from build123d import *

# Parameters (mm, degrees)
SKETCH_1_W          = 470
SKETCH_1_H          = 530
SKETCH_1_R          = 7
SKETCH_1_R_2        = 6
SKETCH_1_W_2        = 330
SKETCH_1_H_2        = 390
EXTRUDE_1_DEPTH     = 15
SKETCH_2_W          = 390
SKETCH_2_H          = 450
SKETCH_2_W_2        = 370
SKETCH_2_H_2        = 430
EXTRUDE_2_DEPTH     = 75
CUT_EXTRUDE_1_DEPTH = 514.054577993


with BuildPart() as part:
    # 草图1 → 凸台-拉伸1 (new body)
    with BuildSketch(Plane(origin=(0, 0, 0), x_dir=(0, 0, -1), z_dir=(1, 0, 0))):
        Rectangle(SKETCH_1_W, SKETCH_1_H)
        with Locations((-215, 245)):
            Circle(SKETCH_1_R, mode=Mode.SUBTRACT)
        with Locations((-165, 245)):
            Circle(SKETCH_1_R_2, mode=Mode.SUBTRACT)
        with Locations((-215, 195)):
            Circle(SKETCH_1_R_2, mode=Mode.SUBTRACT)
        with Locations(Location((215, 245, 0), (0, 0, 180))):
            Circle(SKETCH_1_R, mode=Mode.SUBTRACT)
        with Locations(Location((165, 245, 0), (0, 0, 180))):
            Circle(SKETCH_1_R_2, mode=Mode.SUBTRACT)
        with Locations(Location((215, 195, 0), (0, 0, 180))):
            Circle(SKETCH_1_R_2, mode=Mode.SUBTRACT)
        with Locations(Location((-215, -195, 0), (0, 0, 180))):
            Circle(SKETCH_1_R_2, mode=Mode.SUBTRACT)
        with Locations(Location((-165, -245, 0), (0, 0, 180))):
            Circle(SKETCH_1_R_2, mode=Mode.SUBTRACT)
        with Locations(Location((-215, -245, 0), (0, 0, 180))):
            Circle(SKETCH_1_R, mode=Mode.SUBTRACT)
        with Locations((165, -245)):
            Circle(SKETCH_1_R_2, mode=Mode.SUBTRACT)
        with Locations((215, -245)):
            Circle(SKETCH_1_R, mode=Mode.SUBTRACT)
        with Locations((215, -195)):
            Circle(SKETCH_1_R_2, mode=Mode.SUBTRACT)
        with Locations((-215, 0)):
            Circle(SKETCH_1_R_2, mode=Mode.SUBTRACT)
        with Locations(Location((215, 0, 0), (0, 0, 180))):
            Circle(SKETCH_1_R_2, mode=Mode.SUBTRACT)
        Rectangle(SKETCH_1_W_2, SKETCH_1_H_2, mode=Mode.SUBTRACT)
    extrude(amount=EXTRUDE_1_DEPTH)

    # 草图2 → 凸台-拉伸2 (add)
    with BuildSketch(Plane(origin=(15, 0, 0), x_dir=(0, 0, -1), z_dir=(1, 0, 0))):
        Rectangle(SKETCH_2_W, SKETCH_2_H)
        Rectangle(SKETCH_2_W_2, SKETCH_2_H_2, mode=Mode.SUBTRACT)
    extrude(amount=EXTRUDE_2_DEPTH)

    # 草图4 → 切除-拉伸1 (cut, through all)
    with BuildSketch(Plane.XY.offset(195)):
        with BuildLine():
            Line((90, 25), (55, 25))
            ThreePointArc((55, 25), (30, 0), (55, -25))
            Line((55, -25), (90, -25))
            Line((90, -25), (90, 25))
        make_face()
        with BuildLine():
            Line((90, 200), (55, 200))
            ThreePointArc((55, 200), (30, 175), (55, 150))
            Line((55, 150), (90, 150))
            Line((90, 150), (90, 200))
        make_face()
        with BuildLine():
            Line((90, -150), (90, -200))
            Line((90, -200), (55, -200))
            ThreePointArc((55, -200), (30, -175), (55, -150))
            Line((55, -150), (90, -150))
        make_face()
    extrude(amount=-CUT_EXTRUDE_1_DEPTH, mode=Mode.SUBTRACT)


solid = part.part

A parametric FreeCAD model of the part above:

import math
import FreeCAD as App
import Part
import Sketcher
from FreeCAD import Vector


def add_polygon(sketch, points):
    """Adds a closed chain of lines whose ends are joined by coincident constraints."""
    first, n = sketch.GeometryCount, len(points)
    for a, b in zip(points, points[1:] + points[:1]):
        sketch.addGeometry(Part.LineSegment(App.Vector(*a, 0), App.Vector(*b, 0)), False)
    for i in range(n):
        sketch.addConstraint(Sketcher.Constraint("Coincident", first + i, 2, first + (i + 1) % n, 1))

doc = App.newDocument("Part")
body = doc.addObject("PartDesign::Body", "Body")

sketch1 = doc.addObject("Sketcher::SketchObject", "Sketch")
body.addObject(sketch1)
sketch1.AttachmentSupport = (doc.YZ_Plane, [""])
sketch1.MapMode = "FlatFace"
add_polygon(sketch1, [(265, 235), (-265, 235), (-265, -235), (265, -235)])
sketch1.addGeometry(Part.Circle(Vector(-245, 215, 0), Vector(0, 0, 1), 7), False)
sketch1.addGeometry(Part.Circle(Vector(-195, 215, 0), Vector(0, 0, 1), 6), False)
sketch1.addGeometry(Part.Circle(Vector(-245, 165, 0), Vector(0, 0, 1), 6), False)
sketch1.addGeometry(Part.Circle(Vector(-245, -165, 0), Vector(0, 0, 1), 6), False)
sketch1.addGeometry(Part.Circle(Vector(-245, -215, 0), Vector(0, 0, 1), 7), False)
sketch1.addGeometry(Part.Circle(Vector(-195, -215, 0), Vector(0, 0, 1), 6), False)
sketch1.addGeometry(Part.Circle(Vector(0, 215, 0), Vector(0, 0, 1), 6), False)
sketch1.addGeometry(Part.Circle(Vector(195, 215, 0), Vector(0, 0, 1), 6), False)
sketch1.addGeometry(Part.Circle(Vector(245, 215, 0), Vector(0, 0, 1), 7), False)
sketch1.addGeometry(Part.Circle(Vector(245, 165, 0), Vector(0, 0, 1), 6), False)
add_polygon(sketch1, [(-195, -165), (-195, 165), (195, 165), (195, -165)])
sketch1.addGeometry(Part.Circle(Vector(0, -215, 0), Vector(0, 0, 1), 6), False)
sketch1.addGeometry(Part.Circle(Vector(245, -165, 0), Vector(0, 0, 1), 6), False)
sketch1.addGeometry(Part.Circle(Vector(195, -215, 0), Vector(0, 0, 1), 6), False)
sketch1.addGeometry(Part.Circle(Vector(245, -215, 0), Vector(0, 0, 1), 7), False)
sketch1.addConstraint([
    Sketcher.Constraint("Horizontal", 0),
    Sketcher.Constraint("Vertical", 1),
    Sketcher.Constraint("Horizontal", 2),
    Sketcher.Constraint("Vertical", 3),
    Sketcher.Constraint("Vertical", 14),
    Sketcher.Constraint("Horizontal", 15),
    Sketcher.Constraint("Vertical", 16),
    Sketcher.Constraint("Horizontal", 17),
    Sketcher.Constraint("Equal", 5, 6),
    Sketcher.Constraint("Equal", 6, 7),
    Sketcher.Constraint("Equal", 4, 8),
    Sketcher.Constraint("Equal", 7, 9),
    Sketcher.Constraint("Equal", 9, 10),
    Sketcher.Constraint("Equal", 10, 11),
    Sketcher.Constraint("Equal", 8, 12),
    Sketcher.Constraint("Equal", 11, 13),
    Sketcher.Constraint("Equal", 13, 18),
    Sketcher.Constraint("Equal", 18, 19),
    Sketcher.Constraint("Equal", 19, 20),
    Sketcher.Constraint("Equal", 12, 21),
    Sketcher.Constraint("Symmetric", 9, 3, 11, 3, -1, 1),
    Sketcher.Constraint("Symmetric", 8, 3, 12, 3, -1, 1),
    Sketcher.Constraint("Symmetric", 7, 3, 13, 3, -1, 1),
    Sketcher.Constraint("Symmetric", 10, 3, 18, 3, -1, 1),
    Sketcher.Constraint("Symmetric", 6, 3, 19, 3, -1, 1),
    Sketcher.Constraint("Symmetric", 5, 3, 20, 3, -1, 1),
    Sketcher.Constraint("Symmetric", 4, 3, 21, 3, -1, 1),
    Sketcher.Constraint("Symmetric", 0, 2, 2, 2, -1, 1),
    Sketcher.Constraint("Symmetric", 14, 2, 16, 2, -1, 1),
    Sketcher.Constraint("Symmetric", 5, 3, 11, 3, -2),
    Sketcher.Constraint("Symmetric", 4, 3, 12, 3, -2),
    Sketcher.Constraint("Symmetric", 6, 3, 13, 3, -2),
    Sketcher.Constraint("PointOnObject", 10, 3, -2),
    Sketcher.Constraint("Horizontal", 4, 3, 5, 3),
    Sketcher.Constraint("Horizontal", 5, 3, 10, 3),
    Sketcher.Constraint("Horizontal", 13, 3, 14, 2),
    Sketcher.Constraint("Vertical", 4, 3, 6, 3),
    Sketcher.Constraint("Vertical", 9, 3, 14, 2),
    Sketcher.Constraint("Diameter", 4, 14.0),
    Sketcher.Constraint("Diameter", 5, 12.0),
    Sketcher.Constraint("DistanceX", 0, 2, 0, 1, 530.0),
    Sketcher.Constraint("DistanceX", 15, 1, 15, 2, 390.0),
    Sketcher.Constraint("DistanceY", 1, 2, 1, 1, 470.0),
    Sketcher.Constraint("DistanceY", 14, 1, 14, 2, 330.0),
    Sketcher.Constraint("DistanceX", 4, 3, -1, 1, 245.0),
    Sketcher.Constraint("DistanceY", -1, 1, 4, 3, 215.0),
])
pad1 = doc.addObject("PartDesign::Pad", "Pad")
body.addObject(pad1)
pad1.Profile = sketch1
pad1.Length = 15

sketch2 = doc.addObject("Sketcher::SketchObject", "Sketch001")
body.addObject(sketch2)
sketch2.AttachmentSupport = (doc.YZ_Plane, [""])
sketch2.MapMode = "FlatFace"
sketch2.AttachmentOffset = App.Placement(Vector(0, 0, 15), App.Rotation())
add_polygon(sketch2, [(225, 195), (-225, 195), (-225, -195), (225, -195)])
add_polygon(sketch2, [(-215, -185), (-215, 185), (215, 185), (215, -185)])
sketch2.addConstraint([
    Sketcher.Constraint("Horizontal", 0),
    Sketcher.Constraint("Vertical", 1),
    Sketcher.Constraint("Horizontal", 2),
    Sketcher.Constraint("Vertical", 3),
    Sketcher.Constraint("Vertical", 4),
    Sketcher.Constraint("Horizontal", 5),
    Sketcher.Constraint("Vertical", 6),
    Sketcher.Constraint("Horizontal", 7),
    Sketcher.Constraint("Symmetric", 0, 2, 2, 2, -1, 1),
    Sketcher.Constraint("Symmetric", 4, 2, 6, 2, -1, 1),
    Sketcher.Constraint("DistanceX", 0, 2, 0, 1, 450.0),
    Sketcher.Constraint("DistanceX", 5, 1, 5, 2, 430.0),
    Sketcher.Constraint("DistanceY", 1, 2, 1, 1, 390.0),
    Sketcher.Constraint("DistanceY", 4, 1, 4, 2, 370.0),
])
pad2 = doc.addObject("PartDesign::Pad", "Pad001")
body.addObject(pad2)
pad2.Profile = sketch2
pad2.Length = 75

sketch3 = doc.addObject("Sketcher::SketchObject", "Sketch002")
body.addObject(sketch3)
sketch3.AttachmentSupport = (doc.XY_Plane, [""])
sketch3.MapMode = "FlatFace"
sketch3.AttachmentOffset = App.Placement(Vector(0, 0, 195), App.Rotation())
sketch3.addGeometry([
    Part.LineSegment(Vector(90, 25, 0), Vector(55, 25, 0)),
    Part.ArcOfCircle(Part.Circle(Vector(55, 0, 0), Vector(0, 0, 1), 25), math.radians(90), math.radians(270)),
    Part.LineSegment(Vector(55, -25, 0), Vector(90, -25, 0)),
    Part.LineSegment(Vector(90, -25, 0), Vector(90, 25, 0)),
    Part.LineSegment(Vector(90, 200, 0), Vector(55, 200, 0)),
    Part.ArcOfCircle(Part.Circle(Vector(55, 175, 0), Vector(0, 0, 1), 25), math.radians(90), math.radians(270)),
    Part.LineSegment(Vector(55, 150, 0), Vector(90, 150, 0)),
    Part.LineSegment(Vector(90, 150, 0), Vector(90, 200, 0)),
    Part.LineSegment(Vector(90, -200, 0), Vector(90, -150, 0)),
    Part.LineSegment(Vector(90, -150, 0), Vector(55, -150, 0)),
    Part.ArcOfCircle(Part.Circle(Vector(55, -175, 0), Vector(0, 0, 1), 25), math.radians(90), math.radians(270)),
    Part.LineSegment(Vector(55, -200, 0), Vector(90, -200, 0)),
], False)
sketch3.addConstraint([
    Sketcher.Constraint("Tangent", 0, 2, 1, 1),
    Sketcher.Constraint("Tangent", 1, 2, 2, 1),
    Sketcher.Constraint("Coincident", 2, 2, 3, 1),
    Sketcher.Constraint("Coincident", 3, 2, 0, 1),
    Sketcher.Constraint("Tangent", 4, 2, 5, 1),
    Sketcher.Constraint("Tangent", 5, 2, 6, 1),
    Sketcher.Constraint("Coincident", 6, 2, 7, 1),
    Sketcher.Constraint("Coincident", 7, 2, 4, 1),
    Sketcher.Constraint("Coincident", 8, 2, 9, 1),
    Sketcher.Constraint("Tangent", 9, 2, 10, 1),
    Sketcher.Constraint("Tangent", 10, 2, 11, 1),
    Sketcher.Constraint("Coincident", 11, 2, 8, 1),
    Sketcher.Constraint("Horizontal", 0),
    Sketcher.Constraint("Horizontal", 2),
    Sketcher.Constraint("Vertical", 3),
    Sketcher.Constraint("Horizontal", 4),
    Sketcher.Constraint("Horizontal", 6),
    Sketcher.Constraint("Vertical", 7),
    Sketcher.Constraint("Vertical", 8),
    Sketcher.Constraint("Horizontal", 9),
    Sketcher.Constraint("Horizontal", 11),
    Sketcher.Constraint("Equal", 1, 5),
    Sketcher.Constraint("Equal", 5, 10),
    Sketcher.Constraint("Symmetric", 5, 3, 10, 3, -1),
    Sketcher.Constraint("PointOnObject", 1, 3, -1),
    Sketcher.Constraint("Vertical", 1, 3, 5, 3),
    Sketcher.Constraint("Vertical", 3, 2, 6, 2),
    Sketcher.Constraint("Vertical", 7, 2, 8, 2),
    Sketcher.Constraint("Radius", 1, 25.0),
    Sketcher.Constraint("DistanceX", 0, 2, 0, 1, 35.0),
    Sketcher.Constraint("DistanceX", -1, 1, 1, 3, 55.0),
    Sketcher.Constraint("DistanceY", -1, 1, 5, 3, 175.0),
])
pocket1 = doc.addObject("PartDesign::Pocket", "Pocket")
body.addObject(pocket1)
pocket1.Profile = sketch3
pocket1.Type = "ThroughAll"

doc.recompute()
